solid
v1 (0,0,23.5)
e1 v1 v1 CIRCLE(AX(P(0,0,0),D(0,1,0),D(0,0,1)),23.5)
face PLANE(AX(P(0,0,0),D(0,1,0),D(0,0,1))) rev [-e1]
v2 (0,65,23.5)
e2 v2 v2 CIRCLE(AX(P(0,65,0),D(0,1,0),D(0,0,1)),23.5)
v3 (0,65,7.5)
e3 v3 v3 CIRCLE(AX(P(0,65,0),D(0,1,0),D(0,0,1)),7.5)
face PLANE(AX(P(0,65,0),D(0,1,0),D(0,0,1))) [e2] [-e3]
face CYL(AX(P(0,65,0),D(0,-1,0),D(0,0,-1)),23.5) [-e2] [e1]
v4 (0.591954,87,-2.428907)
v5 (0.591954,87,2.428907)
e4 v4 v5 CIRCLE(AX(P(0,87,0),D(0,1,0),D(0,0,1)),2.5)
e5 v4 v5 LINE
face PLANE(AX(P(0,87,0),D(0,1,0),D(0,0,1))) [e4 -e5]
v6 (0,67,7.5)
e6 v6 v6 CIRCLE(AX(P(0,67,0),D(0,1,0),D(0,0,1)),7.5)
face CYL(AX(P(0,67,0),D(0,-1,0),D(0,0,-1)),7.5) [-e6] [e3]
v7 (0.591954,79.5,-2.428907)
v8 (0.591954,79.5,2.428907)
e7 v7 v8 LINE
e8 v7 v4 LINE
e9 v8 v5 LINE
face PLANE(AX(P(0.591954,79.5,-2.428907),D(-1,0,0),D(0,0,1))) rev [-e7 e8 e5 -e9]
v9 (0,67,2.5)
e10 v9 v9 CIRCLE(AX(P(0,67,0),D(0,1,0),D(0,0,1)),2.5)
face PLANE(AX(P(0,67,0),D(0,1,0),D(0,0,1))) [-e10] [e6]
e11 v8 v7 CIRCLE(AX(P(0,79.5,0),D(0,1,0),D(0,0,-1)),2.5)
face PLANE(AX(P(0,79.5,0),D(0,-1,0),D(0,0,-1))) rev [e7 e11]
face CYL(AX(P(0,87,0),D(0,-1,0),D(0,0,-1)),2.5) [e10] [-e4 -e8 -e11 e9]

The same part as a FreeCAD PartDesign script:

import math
import FreeCAD as App
import Part
import Sketcher
from FreeCAD import Vector

doc = App.newDocument("Part")
params = doc.addObject("Spreadsheet::Sheet", "Params")
for row, (alias, value) in enumerate([
    ("sketch1_diameter", "47 mm"),
    ("pad1_length", "65 mm"),
    ("sketch2_diameter", "15 mm"),
    ("pad2_length", "2 mm"),
    ("sketch3_diameter", "5 mm"),
    ("pad3_length", "20 mm"),
    ("sketch4_radius", "2.5 mm"),
    ("pocket1_length", "7.5 mm"),
], start=1):
    params.set(f"A{row}", alias)
    params.set(f"B{row}", "=" + value)
    params.setAlias(f"B{row}", alias)

body = doc.addObject("PartDesign::Body", "Body")

# Sketch on XZ plane
sketch1 = body.newObject("Sketcher::SketchObject", "Sketch")
sketch1.AttachmentSupport = (doc.getObject("XZ_Plane"), [""])
sketch1.MapMode = "FlatFace"
sketch1.addGeometry(Part.Circle(Vector(0, 0, 0), Vector(0, 0, 1), 24), False)
sketch1.addConstraint(Sketcher.Constraint("Coincident", 0, 3, -1, 1))
sketch1.addConstraint(Sketcher.Constraint("Diameter", 0, 47.0))
sketch1.setExpression("Constraints[1]", "Params.sketch1_diameter")
pad1 = body.newObject("PartDesign::Pad", "Pad")
pad1.Profile = sketch1
pad1.setExpression("Length", "Params.pad1_length")
pad1.Reversed = True

# Sketch on XZ plane
sketch2 = body.newObject("Sketcher::SketchObject", "Sketch001")
sketch2.AttachmentSupport = (doc.getObject("XZ_Plane"), [""])
sketch2.MapMode = "FlatFace"
sketch2.AttachmentOffset = App.Placement(Vector(0, 0, -65), App.Rotation())
sketch2.addGeometry(Part.Circle(Vector(0, 0, 0), Vector(0, 0, 1), 8), False)
sketch2.addConstraint(Sketcher.Constraint("Coincident", 0, 3, -1, 1))
sketch2.addConstraint(Sketcher.Constraint("Diameter", 0, 15.0))
sketch2.setExpression("Constraints[1]", "Params.sketch2_diameter")
pad2 = body.newObject("PartDesign::Pad", "Pad001")
pad2.Profile = sketch2
pad2.setExpression("Length", "Params.pad2_length")
pad2.Reversed = True

# Sketch on XZ plane
sketch3 = body.newObject("Sketcher::SketchObject", "Sketch002")
sketch3.AttachmentSupport = (doc.getObject("XZ_Plane"), [""])
sketch3.MapMode = "FlatFace"
sketch3.AttachmentOffset = App.Placement(Vector(0, 0, -67), App.Rotation())
sketch3.addGeometry(Part.Circle(Vector(0, 0, 0), Vector(0, 0, 1), 2.5), False)
sketch3.addConstraint(Sketcher.Constraint("Coincident", 0, 3, -1, 1))
sketch3.addConstraint(Sketcher.Constraint("Diameter", 0, 5.0))
sketch3.setExpression("Constraints[1]", "Params.sketch3_diameter")
pad3 = body.newObject("PartDesign::Pad", "Pad002")
pad3.Profile = sketch3
pad3.setExpression("Length", "Params.pad3_length")
pad3.Reversed = True

# Sketch on XZ plane
sketch4 = body.newObject("Sketcher::SketchObject", "Sketch003")
sketch4.AttachmentSupport = (doc.getObject("XZ_Plane"), [""])
sketch4.MapMode = "FlatFace"
sketch4.AttachmentOffset = App.Placement(Vector(0, 0, -79.5), App.Rotation())
sketch4.addGeometry(Part.LineSegment(Vector(0.6, -2.4, 0), Vector(0.6, 2.4, 0)), False)
sketch4.addGeometry(Part.ArcOfCircle(Part.Circle(Vector(0, 0, 0), Vector(0, 0, 1), 2.5), math.radians(-76), math.radians(76)), False)
sketch4.addConstraint(Sketcher.Constraint("Coincident", 0, 1, 1, 1))
sketch4.addConstraint(Sketcher.Constraint("Coincident", 1, 2, 0, 2))
sketch4.addConstraint(Sketcher.Constraint("Vertical", 0))
sketch4.addConstraint(Sketcher.Constraint("Coincident", 1, 3, -1, 1))
sketch4.addConstraint(Sketcher.Constraint("Radius", 1, 2.5))
sketch4.addConstraint(Sketcher.Constraint("DistanceY", 0, 1, 0, 2, 4.857815))
sketch4.setExpression("Constraints[4]", "Params.sketch4_radius")
pocket1 = body.newObject("PartDesign::Pocket", "Pocket")
pocket1.Profile = sketch4
pocket1.setExpression("Length", "Params.pocket1_length")

doc.recompute()
